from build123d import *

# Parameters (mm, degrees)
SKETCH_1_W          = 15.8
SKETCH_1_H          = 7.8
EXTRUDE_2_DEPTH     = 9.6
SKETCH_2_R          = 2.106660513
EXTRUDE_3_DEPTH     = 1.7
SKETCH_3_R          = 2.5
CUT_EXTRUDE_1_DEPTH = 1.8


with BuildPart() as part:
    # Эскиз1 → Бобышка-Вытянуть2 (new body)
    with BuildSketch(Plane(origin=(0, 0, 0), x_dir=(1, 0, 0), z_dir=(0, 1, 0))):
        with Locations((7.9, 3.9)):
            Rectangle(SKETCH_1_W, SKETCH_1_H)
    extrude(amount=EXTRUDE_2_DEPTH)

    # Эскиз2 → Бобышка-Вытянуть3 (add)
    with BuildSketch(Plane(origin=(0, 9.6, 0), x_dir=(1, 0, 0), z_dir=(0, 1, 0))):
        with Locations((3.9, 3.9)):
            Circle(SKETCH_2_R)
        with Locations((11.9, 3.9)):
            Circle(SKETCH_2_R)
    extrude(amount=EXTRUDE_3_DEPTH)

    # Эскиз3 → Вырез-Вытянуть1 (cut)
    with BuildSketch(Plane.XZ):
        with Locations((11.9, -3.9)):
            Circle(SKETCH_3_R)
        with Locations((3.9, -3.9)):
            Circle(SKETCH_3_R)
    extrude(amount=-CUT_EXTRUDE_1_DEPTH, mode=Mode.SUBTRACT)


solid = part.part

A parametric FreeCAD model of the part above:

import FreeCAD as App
import Part
import Sketcher
from FreeCAD import Vector

doc = App.newDocument("Part")
body = doc.addObject("PartDesign::Body", "Body")

sketch1 = body.newObject("Sketcher::SketchObject", "Sketch")
sketch1.AttachmentSupport = (doc.getObject("XZ_Plane"), [""])
sketch1.MapMode = "FlatFace"
sketch1.addGeometry([
    Part.LineSegment(Vector(0, -8, 0), Vector(0, 0, 0)),
    Part.LineSegment(Vector(0, 0, 0), Vector(16, 0, 0)),
    Part.LineSegment(Vector(16, 0, 0), Vector(16, -8, 0)),
    Part.LineSegment(Vector(16, -8, 0), Vector(0, -8, 0)),
], False)
sketch1.addConstraint([
    Sketcher.Constraint("Coincident", 0, 2, 1, 1),
    Sketcher.Constraint("Coincident", 1, 2, 2, 1),
    Sketcher.Constraint("Coincident", 2, 2, 3, 1),
    Sketcher.Constraint("Coincident", 3, 2, 0, 1),
    Sketcher.Constraint("Vertical", 0),
    Sketcher.Constraint("Horizontal", 1),
    Sketcher.Constraint("Vertical", 2),
    Sketcher.Constraint("Horizontal", 3),
    Sketcher.Constraint("Coincident", 0, 2, -1, 1),
    Sketcher.Constraint("DistanceX", 1, 1, 1, 2, 15.8),
    Sketcher.Constraint("DistanceY", 0, 1, 0, 2, 7.8),
])
pad1 = body.newObject("PartDesign::Pad", "Pad")
pad1.Profile = sketch1
pad1.Length = 9.6
pad1.Reversed = True

sketch2 = body.newObject("Sketcher::SketchObject", "Sketch001")
sketch2.AttachmentSupport = (doc.getObject("XZ_Plane"), [""])
sketch2.MapMode = "FlatFace"
sketch2.AttachmentOffset = App.Placement(Vector(0, 0, -9.6), App.Rotation())
sketch2.addGeometry([
    Part.Circle(Vector(3.9, -3.9, 0), Vector(0, 0, 1), 2.1),
    Part.Circle(Vector(11.9, -3.9, 0), Vector(0, 0, 1), 2.1),
], False)
sketch2.addConstraint([
    Sketcher.Constraint("Equal", 0, 1),
    Sketcher.Constraint("Horizontal", 0, 3, 1, 3),
    Sketcher.Constraint("DistanceX", 0, 3, 1, 3, 8.0),
    Sketcher.Constraint("DistanceX", -1, 1, 0, 3, 3.9),
    Sketcher.Constraint("DistanceY", 0, 3, -1, 1, 3.9),
    Sketcher.Constraint("Diameter", 0, 4.213321),
])
pad2 = body.newObject("PartDesign::Pad", "Pad001")
pad2.Profile = sketch2
pad2.Length = 1.7
pad2.Reversed = True

sketch3 = body.newObject("Sketcher::SketchObject", "Sketch002")
sketch3.AttachmentSupport = (doc.getObject("XZ_Plane"), [""])
sketch3.MapMode = "FlatFace"
sketch3.addGeometry([
    Part.Circle(Vector(11.9, -3.9, 0), Vector(0, 0, 1), 2.5),
    Part.Circle(Vector(3.9, -3.9, 0), Vector(0, 0, 1), 2.5),
], False)
sketch3.addConstraint([
    Sketcher.Constraint("Equal", 0, 1),
    Sketcher.Constraint("Horizontal", 0, 3, 1, 3),
    Sketcher.Constraint("Diameter", 0, 5.0),
    Sketcher.Constraint("DistanceX", 1, 3, 0, 3, 8.0),
    Sketcher.Constraint("DistanceX", -1, 1, 0, 3, 11.9),
    Sketcher.Constraint("DistanceY", 0, 3, -1, 1, 3.9),
])
pocket1 = body.newObject("PartDesign::Pocket", "Pocket")
pocket1.Profile = sketch3
pocket1.Length = 1.8

doc.recompute()
